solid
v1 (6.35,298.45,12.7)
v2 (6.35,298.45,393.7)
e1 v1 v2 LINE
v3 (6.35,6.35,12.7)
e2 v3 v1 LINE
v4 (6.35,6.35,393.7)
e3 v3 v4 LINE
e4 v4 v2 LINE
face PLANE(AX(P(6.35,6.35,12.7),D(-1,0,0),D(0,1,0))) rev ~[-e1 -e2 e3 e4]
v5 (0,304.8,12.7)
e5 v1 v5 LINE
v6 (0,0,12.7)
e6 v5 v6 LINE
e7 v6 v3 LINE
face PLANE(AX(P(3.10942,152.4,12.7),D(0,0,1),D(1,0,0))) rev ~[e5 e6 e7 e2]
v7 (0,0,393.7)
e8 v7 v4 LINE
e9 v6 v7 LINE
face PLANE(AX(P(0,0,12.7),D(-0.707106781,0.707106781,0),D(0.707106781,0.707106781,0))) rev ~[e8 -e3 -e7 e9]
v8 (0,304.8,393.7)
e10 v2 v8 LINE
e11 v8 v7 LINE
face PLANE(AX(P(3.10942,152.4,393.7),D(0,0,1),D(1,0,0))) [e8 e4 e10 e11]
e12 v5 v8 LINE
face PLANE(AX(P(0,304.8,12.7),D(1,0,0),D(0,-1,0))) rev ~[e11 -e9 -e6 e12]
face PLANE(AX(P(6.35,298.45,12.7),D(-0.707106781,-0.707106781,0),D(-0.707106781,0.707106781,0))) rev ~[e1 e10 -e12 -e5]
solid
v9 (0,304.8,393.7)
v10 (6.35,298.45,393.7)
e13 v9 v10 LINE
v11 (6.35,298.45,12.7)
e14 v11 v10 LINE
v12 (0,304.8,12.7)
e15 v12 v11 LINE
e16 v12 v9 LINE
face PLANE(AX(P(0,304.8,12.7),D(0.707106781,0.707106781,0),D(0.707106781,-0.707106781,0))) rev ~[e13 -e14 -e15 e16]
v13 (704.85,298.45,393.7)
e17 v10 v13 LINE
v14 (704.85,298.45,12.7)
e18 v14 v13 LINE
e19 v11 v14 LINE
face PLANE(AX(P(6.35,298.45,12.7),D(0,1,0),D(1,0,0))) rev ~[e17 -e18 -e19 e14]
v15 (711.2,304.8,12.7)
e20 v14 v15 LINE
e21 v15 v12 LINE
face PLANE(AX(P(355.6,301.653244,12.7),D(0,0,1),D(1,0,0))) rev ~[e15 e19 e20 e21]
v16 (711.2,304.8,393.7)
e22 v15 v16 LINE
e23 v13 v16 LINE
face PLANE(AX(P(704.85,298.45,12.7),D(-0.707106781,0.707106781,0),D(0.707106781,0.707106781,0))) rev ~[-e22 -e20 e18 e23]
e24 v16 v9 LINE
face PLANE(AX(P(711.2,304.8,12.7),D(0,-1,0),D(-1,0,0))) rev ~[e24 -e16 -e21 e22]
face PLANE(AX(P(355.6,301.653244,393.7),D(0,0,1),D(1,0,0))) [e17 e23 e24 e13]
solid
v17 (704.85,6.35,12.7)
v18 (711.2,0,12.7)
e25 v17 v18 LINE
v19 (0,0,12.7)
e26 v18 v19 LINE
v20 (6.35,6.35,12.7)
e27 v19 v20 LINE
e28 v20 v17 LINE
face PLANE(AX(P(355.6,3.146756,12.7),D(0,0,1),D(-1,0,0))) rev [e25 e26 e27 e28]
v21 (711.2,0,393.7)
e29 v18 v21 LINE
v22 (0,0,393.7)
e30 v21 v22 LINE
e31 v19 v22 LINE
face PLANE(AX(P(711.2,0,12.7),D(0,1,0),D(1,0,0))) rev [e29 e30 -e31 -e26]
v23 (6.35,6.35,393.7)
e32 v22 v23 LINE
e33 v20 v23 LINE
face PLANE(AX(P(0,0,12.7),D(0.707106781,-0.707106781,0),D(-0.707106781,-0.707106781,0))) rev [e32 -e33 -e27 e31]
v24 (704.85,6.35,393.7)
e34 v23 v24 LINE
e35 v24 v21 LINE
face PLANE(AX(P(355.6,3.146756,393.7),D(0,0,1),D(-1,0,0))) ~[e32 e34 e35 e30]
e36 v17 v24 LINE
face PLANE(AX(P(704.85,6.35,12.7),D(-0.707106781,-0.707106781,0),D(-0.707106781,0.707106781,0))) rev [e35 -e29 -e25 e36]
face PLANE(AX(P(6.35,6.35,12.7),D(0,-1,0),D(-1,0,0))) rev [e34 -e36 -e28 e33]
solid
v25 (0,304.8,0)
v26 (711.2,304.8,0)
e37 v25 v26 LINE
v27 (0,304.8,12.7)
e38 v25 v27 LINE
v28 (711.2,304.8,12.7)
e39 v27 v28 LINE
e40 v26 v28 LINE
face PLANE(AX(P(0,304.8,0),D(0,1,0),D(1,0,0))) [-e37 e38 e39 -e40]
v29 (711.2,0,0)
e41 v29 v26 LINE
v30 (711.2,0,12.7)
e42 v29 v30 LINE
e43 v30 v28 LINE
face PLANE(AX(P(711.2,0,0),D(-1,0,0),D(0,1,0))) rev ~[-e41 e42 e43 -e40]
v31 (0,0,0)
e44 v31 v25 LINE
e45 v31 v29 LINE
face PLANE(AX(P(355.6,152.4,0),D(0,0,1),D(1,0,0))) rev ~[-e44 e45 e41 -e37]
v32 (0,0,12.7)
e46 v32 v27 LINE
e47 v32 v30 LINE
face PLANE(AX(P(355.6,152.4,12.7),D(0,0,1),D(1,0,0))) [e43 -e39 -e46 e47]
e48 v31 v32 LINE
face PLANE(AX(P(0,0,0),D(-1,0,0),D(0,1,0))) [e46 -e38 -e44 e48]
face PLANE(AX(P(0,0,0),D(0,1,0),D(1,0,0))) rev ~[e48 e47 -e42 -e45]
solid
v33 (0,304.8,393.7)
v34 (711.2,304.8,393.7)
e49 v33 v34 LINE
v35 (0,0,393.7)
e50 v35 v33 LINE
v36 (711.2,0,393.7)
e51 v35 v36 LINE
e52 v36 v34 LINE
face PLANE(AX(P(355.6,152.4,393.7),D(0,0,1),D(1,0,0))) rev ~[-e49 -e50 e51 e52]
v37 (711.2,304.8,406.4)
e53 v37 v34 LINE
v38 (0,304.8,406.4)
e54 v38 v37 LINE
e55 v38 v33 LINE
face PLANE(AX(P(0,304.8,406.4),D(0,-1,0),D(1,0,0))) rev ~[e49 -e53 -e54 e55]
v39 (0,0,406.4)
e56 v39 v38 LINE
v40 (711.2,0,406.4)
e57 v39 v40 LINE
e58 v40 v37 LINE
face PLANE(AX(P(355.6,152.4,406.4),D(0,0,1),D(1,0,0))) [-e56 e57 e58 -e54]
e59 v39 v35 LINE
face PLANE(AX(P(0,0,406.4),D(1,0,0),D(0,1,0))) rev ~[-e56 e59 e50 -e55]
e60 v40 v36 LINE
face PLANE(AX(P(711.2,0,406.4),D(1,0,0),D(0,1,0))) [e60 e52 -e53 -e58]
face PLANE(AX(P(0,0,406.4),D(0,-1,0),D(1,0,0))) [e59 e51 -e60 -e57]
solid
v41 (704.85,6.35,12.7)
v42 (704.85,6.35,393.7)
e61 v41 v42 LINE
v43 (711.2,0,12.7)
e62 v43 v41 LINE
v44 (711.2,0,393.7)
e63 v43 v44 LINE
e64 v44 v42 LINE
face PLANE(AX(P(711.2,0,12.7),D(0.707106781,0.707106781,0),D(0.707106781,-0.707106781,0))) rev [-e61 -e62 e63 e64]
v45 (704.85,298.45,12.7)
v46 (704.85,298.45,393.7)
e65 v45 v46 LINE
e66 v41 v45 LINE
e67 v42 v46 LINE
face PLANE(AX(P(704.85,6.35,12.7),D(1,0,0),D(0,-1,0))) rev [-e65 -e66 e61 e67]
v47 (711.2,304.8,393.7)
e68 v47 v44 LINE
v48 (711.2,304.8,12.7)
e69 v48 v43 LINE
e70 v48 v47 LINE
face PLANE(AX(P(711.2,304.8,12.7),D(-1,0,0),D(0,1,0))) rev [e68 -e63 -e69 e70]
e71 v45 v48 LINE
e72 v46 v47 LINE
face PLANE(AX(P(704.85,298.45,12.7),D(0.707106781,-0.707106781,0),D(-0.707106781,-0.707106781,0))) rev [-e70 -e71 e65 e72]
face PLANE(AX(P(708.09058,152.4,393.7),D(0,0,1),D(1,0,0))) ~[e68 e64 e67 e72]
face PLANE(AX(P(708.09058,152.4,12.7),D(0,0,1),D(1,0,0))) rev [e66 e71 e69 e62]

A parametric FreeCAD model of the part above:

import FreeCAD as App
import Part
import Sketcher
Q = App.Units.Quantity


def add_polygon(sketch, points):
    """Adds a closed chain of lines whose ends are joined by coincident constraints."""
    first, n = sketch.GeometryCount, len(points)
    for a, b in zip(points, points[1:] + points[:1]):
        sketch.addGeometry(Part.LineSegment(App.Vector(*a, 0), App.Vector(*b, 0)), False)
    for i in range(n):
        sketch.addConstraint(Sketcher.Constraint("Coincident", first + i, 2, first + (i + 1) % n, 1))

doc = App.newDocument("Part")
body = doc.addObject("PartDesign::Body", "Body")

# Sketch on XY plane
sketch1 = body.newObject("Sketcher::SketchObject", "Sketch")
sketch1.AttachmentSupport = (doc.getObject("XY_Plane"), [""])
sketch1.MapMode = "FlatFace"
add_polygon(sketch1, [(0, 304.8), (0, 0), (711.2, 0), (711.2, 304.8)])  # lines 0-3
sketch1.addConstraint([
    Sketcher.Constraint("Vertical", 0),
    Sketcher.Constraint("Horizontal", 1),
    Sketcher.Constraint("Vertical", 2),
    Sketcher.Constraint("Horizontal", 3),
    Sketcher.Constraint("Coincident", 0, 2, -1, 1),
    Sketcher.Constraint("DistanceX", 1, 1, 1, 2, Q("28 in")),
    Sketcher.Constraint("DistanceY", 0, 2, 0, 1, Q("12 in")),
])
pad1 = body.newObject("PartDesign::Pad", "Pad")
pad1.Profile = sketch1
pad1.Length = Q("0.5 in")
body2 = doc.addObject("PartDesign::Body", "Body001")

# Sketch on XY plane
sketch2 = body2.newObject("Sketcher::SketchObject", "Sketch001")
sketch2.AttachmentSupport = (doc.getObject("XY_Plane001"), [""])
sketch2.MapMode = "FlatFace"
sketch2.AttachmentOffset = App.Placement(App.Vector(0, 0, 16 * 25.4), App.Rotation())
add_polygon(sketch2, [(0, 304.8), (0, 0), (711.2, 0), (711.2, 304.8)])  # lines 0-3
sketch2.addConstraint([
    Sketcher.Constraint("Vertical", 0),
    Sketcher.Constraint("Horizontal", 1),
    Sketcher.Constraint("Vertical", 2),
    Sketcher.Constraint("Horizontal", 3),
    Sketcher.Constraint("Coincident", 0, 2, -1, 1),
    Sketcher.Constraint("DistanceX", 1, 1, 1, 2, Q("28 in")),
    Sketcher.Constraint("DistanceY", 0, 2, 0, 1, Q("12 in")),
])
pad2 = body2.newObject("PartDesign::Pad", "Pad001")
pad2.Profile = sketch2
pad2.Length = Q("0.5 in")
pad2.Reversed = True
body3 = doc.addObject("PartDesign::Body", "Body002")

# Sketch on XY plane
sketch3 = body3.newObject("Sketcher::SketchObject", "Sketch002")
sketch3.AttachmentSupport = (doc.getObject("XY_Plane002"), [""])
sketch3.MapMode = "FlatFace"
sketch3.AttachmentOffset = App.Placement(App.Vector(0, 0, 0.5 * 25.4), App.Rotation())
add_polygon(sketch3, [(711.2, 304.8), (0, 304.8), (6.35, 298.45), (704.85, 298.45)])  # lines 0-3
sketch3.addConstraint([
    Sketcher.Constraint("Horizontal", 0),
    Sketcher.Constraint("Horizontal", 2),
    Sketcher.Constraint("PointOnObject", 0, 2, -2),
    Sketcher.Constraint("Perpendicular", 1, 3),
    Sketcher.Constraint("Equal", 1, 3),
    Sketcher.Constraint("DistanceX", 0, 2, 0, 1, Q("28 in")),
    Sketcher.Constraint("DistanceX", 2, 1, 2, 2, Q("27.5 in")),
    Sketcher.Constraint("DistanceY", -1, 1, 0, 2, Q("12 in")),
])
pad3 = body3.newObject("PartDesign::Pad", "Pad002")
pad3.Profile = sketch3
pad3.Length = Q("15 in")
body4 = doc.addObject("PartDesign::Body", "Body003")

# Sketch on XY plane
sketch4 = body4.newObject("Sketcher::SketchObject", "Sketch003")
sketch4.AttachmentSupport = (doc.getObject("XY_Plane003"), [""])
sketch4.MapMode = "FlatFace"
sketch4.AttachmentOffset = App.Placement(App.Vector(0, 0, 0.5 * 25.4), App.Rotation())
add_polygon(sketch4, [(6.35, 298.45), (0, 304.8), (0, 0), (6.35, 6.35)])  # lines 0-3
sketch4.addConstraint([
    Sketcher.Constraint("Vertical", 1),
    Sketcher.Constraint("Vertical", 3),
    Sketcher.Constraint("Coincident", 1, 2, -1, 1),
    Sketcher.Constraint("Perpendicular", 0, 2),
    Sketcher.Constraint("Equal", 0, 2),
    Sketcher.Constraint("DistanceY", 1, 2, 1, 1, Q("12 in")),
    Sketcher.Constraint("DistanceY", 3, 1, 3, 2, Q("11.5 in")),
])
pad4 = body4.newObject("PartDesign::Pad", "Pad003")
pad4.Profile = sketch4
pad4.Length = Q("15 in")
body5 = doc.addObject("PartDesign::Body", "Body004")
doc.recompute()

mirroring = doc.addObject("Part::Mirroring", "Mirroring")
mirroring.Source = body4
mirroring.Base = App.Vector(355.6, 152.4, 6.35)
mirroring.Normal = App.Vector(1, 0, 0)
body5.BaseFeature = mirroring
doc.recompute()
body6 = doc.addObject("PartDesign::Body", "Body005")
doc.recompute()

mirroring2 = doc.addObject("Part::Mirroring", "Mirroring001")
mirroring2.Source = body3
mirroring2.Base = App.Vector(355.6, 152.4, 6.35)
mirroring2.Normal = App.Vector(0, -1, 0)
body6.BaseFeature = mirroring2
doc.recompute()
mirroring.Visibility = False
mirroring2.Visibility = False

doc.recompute()
